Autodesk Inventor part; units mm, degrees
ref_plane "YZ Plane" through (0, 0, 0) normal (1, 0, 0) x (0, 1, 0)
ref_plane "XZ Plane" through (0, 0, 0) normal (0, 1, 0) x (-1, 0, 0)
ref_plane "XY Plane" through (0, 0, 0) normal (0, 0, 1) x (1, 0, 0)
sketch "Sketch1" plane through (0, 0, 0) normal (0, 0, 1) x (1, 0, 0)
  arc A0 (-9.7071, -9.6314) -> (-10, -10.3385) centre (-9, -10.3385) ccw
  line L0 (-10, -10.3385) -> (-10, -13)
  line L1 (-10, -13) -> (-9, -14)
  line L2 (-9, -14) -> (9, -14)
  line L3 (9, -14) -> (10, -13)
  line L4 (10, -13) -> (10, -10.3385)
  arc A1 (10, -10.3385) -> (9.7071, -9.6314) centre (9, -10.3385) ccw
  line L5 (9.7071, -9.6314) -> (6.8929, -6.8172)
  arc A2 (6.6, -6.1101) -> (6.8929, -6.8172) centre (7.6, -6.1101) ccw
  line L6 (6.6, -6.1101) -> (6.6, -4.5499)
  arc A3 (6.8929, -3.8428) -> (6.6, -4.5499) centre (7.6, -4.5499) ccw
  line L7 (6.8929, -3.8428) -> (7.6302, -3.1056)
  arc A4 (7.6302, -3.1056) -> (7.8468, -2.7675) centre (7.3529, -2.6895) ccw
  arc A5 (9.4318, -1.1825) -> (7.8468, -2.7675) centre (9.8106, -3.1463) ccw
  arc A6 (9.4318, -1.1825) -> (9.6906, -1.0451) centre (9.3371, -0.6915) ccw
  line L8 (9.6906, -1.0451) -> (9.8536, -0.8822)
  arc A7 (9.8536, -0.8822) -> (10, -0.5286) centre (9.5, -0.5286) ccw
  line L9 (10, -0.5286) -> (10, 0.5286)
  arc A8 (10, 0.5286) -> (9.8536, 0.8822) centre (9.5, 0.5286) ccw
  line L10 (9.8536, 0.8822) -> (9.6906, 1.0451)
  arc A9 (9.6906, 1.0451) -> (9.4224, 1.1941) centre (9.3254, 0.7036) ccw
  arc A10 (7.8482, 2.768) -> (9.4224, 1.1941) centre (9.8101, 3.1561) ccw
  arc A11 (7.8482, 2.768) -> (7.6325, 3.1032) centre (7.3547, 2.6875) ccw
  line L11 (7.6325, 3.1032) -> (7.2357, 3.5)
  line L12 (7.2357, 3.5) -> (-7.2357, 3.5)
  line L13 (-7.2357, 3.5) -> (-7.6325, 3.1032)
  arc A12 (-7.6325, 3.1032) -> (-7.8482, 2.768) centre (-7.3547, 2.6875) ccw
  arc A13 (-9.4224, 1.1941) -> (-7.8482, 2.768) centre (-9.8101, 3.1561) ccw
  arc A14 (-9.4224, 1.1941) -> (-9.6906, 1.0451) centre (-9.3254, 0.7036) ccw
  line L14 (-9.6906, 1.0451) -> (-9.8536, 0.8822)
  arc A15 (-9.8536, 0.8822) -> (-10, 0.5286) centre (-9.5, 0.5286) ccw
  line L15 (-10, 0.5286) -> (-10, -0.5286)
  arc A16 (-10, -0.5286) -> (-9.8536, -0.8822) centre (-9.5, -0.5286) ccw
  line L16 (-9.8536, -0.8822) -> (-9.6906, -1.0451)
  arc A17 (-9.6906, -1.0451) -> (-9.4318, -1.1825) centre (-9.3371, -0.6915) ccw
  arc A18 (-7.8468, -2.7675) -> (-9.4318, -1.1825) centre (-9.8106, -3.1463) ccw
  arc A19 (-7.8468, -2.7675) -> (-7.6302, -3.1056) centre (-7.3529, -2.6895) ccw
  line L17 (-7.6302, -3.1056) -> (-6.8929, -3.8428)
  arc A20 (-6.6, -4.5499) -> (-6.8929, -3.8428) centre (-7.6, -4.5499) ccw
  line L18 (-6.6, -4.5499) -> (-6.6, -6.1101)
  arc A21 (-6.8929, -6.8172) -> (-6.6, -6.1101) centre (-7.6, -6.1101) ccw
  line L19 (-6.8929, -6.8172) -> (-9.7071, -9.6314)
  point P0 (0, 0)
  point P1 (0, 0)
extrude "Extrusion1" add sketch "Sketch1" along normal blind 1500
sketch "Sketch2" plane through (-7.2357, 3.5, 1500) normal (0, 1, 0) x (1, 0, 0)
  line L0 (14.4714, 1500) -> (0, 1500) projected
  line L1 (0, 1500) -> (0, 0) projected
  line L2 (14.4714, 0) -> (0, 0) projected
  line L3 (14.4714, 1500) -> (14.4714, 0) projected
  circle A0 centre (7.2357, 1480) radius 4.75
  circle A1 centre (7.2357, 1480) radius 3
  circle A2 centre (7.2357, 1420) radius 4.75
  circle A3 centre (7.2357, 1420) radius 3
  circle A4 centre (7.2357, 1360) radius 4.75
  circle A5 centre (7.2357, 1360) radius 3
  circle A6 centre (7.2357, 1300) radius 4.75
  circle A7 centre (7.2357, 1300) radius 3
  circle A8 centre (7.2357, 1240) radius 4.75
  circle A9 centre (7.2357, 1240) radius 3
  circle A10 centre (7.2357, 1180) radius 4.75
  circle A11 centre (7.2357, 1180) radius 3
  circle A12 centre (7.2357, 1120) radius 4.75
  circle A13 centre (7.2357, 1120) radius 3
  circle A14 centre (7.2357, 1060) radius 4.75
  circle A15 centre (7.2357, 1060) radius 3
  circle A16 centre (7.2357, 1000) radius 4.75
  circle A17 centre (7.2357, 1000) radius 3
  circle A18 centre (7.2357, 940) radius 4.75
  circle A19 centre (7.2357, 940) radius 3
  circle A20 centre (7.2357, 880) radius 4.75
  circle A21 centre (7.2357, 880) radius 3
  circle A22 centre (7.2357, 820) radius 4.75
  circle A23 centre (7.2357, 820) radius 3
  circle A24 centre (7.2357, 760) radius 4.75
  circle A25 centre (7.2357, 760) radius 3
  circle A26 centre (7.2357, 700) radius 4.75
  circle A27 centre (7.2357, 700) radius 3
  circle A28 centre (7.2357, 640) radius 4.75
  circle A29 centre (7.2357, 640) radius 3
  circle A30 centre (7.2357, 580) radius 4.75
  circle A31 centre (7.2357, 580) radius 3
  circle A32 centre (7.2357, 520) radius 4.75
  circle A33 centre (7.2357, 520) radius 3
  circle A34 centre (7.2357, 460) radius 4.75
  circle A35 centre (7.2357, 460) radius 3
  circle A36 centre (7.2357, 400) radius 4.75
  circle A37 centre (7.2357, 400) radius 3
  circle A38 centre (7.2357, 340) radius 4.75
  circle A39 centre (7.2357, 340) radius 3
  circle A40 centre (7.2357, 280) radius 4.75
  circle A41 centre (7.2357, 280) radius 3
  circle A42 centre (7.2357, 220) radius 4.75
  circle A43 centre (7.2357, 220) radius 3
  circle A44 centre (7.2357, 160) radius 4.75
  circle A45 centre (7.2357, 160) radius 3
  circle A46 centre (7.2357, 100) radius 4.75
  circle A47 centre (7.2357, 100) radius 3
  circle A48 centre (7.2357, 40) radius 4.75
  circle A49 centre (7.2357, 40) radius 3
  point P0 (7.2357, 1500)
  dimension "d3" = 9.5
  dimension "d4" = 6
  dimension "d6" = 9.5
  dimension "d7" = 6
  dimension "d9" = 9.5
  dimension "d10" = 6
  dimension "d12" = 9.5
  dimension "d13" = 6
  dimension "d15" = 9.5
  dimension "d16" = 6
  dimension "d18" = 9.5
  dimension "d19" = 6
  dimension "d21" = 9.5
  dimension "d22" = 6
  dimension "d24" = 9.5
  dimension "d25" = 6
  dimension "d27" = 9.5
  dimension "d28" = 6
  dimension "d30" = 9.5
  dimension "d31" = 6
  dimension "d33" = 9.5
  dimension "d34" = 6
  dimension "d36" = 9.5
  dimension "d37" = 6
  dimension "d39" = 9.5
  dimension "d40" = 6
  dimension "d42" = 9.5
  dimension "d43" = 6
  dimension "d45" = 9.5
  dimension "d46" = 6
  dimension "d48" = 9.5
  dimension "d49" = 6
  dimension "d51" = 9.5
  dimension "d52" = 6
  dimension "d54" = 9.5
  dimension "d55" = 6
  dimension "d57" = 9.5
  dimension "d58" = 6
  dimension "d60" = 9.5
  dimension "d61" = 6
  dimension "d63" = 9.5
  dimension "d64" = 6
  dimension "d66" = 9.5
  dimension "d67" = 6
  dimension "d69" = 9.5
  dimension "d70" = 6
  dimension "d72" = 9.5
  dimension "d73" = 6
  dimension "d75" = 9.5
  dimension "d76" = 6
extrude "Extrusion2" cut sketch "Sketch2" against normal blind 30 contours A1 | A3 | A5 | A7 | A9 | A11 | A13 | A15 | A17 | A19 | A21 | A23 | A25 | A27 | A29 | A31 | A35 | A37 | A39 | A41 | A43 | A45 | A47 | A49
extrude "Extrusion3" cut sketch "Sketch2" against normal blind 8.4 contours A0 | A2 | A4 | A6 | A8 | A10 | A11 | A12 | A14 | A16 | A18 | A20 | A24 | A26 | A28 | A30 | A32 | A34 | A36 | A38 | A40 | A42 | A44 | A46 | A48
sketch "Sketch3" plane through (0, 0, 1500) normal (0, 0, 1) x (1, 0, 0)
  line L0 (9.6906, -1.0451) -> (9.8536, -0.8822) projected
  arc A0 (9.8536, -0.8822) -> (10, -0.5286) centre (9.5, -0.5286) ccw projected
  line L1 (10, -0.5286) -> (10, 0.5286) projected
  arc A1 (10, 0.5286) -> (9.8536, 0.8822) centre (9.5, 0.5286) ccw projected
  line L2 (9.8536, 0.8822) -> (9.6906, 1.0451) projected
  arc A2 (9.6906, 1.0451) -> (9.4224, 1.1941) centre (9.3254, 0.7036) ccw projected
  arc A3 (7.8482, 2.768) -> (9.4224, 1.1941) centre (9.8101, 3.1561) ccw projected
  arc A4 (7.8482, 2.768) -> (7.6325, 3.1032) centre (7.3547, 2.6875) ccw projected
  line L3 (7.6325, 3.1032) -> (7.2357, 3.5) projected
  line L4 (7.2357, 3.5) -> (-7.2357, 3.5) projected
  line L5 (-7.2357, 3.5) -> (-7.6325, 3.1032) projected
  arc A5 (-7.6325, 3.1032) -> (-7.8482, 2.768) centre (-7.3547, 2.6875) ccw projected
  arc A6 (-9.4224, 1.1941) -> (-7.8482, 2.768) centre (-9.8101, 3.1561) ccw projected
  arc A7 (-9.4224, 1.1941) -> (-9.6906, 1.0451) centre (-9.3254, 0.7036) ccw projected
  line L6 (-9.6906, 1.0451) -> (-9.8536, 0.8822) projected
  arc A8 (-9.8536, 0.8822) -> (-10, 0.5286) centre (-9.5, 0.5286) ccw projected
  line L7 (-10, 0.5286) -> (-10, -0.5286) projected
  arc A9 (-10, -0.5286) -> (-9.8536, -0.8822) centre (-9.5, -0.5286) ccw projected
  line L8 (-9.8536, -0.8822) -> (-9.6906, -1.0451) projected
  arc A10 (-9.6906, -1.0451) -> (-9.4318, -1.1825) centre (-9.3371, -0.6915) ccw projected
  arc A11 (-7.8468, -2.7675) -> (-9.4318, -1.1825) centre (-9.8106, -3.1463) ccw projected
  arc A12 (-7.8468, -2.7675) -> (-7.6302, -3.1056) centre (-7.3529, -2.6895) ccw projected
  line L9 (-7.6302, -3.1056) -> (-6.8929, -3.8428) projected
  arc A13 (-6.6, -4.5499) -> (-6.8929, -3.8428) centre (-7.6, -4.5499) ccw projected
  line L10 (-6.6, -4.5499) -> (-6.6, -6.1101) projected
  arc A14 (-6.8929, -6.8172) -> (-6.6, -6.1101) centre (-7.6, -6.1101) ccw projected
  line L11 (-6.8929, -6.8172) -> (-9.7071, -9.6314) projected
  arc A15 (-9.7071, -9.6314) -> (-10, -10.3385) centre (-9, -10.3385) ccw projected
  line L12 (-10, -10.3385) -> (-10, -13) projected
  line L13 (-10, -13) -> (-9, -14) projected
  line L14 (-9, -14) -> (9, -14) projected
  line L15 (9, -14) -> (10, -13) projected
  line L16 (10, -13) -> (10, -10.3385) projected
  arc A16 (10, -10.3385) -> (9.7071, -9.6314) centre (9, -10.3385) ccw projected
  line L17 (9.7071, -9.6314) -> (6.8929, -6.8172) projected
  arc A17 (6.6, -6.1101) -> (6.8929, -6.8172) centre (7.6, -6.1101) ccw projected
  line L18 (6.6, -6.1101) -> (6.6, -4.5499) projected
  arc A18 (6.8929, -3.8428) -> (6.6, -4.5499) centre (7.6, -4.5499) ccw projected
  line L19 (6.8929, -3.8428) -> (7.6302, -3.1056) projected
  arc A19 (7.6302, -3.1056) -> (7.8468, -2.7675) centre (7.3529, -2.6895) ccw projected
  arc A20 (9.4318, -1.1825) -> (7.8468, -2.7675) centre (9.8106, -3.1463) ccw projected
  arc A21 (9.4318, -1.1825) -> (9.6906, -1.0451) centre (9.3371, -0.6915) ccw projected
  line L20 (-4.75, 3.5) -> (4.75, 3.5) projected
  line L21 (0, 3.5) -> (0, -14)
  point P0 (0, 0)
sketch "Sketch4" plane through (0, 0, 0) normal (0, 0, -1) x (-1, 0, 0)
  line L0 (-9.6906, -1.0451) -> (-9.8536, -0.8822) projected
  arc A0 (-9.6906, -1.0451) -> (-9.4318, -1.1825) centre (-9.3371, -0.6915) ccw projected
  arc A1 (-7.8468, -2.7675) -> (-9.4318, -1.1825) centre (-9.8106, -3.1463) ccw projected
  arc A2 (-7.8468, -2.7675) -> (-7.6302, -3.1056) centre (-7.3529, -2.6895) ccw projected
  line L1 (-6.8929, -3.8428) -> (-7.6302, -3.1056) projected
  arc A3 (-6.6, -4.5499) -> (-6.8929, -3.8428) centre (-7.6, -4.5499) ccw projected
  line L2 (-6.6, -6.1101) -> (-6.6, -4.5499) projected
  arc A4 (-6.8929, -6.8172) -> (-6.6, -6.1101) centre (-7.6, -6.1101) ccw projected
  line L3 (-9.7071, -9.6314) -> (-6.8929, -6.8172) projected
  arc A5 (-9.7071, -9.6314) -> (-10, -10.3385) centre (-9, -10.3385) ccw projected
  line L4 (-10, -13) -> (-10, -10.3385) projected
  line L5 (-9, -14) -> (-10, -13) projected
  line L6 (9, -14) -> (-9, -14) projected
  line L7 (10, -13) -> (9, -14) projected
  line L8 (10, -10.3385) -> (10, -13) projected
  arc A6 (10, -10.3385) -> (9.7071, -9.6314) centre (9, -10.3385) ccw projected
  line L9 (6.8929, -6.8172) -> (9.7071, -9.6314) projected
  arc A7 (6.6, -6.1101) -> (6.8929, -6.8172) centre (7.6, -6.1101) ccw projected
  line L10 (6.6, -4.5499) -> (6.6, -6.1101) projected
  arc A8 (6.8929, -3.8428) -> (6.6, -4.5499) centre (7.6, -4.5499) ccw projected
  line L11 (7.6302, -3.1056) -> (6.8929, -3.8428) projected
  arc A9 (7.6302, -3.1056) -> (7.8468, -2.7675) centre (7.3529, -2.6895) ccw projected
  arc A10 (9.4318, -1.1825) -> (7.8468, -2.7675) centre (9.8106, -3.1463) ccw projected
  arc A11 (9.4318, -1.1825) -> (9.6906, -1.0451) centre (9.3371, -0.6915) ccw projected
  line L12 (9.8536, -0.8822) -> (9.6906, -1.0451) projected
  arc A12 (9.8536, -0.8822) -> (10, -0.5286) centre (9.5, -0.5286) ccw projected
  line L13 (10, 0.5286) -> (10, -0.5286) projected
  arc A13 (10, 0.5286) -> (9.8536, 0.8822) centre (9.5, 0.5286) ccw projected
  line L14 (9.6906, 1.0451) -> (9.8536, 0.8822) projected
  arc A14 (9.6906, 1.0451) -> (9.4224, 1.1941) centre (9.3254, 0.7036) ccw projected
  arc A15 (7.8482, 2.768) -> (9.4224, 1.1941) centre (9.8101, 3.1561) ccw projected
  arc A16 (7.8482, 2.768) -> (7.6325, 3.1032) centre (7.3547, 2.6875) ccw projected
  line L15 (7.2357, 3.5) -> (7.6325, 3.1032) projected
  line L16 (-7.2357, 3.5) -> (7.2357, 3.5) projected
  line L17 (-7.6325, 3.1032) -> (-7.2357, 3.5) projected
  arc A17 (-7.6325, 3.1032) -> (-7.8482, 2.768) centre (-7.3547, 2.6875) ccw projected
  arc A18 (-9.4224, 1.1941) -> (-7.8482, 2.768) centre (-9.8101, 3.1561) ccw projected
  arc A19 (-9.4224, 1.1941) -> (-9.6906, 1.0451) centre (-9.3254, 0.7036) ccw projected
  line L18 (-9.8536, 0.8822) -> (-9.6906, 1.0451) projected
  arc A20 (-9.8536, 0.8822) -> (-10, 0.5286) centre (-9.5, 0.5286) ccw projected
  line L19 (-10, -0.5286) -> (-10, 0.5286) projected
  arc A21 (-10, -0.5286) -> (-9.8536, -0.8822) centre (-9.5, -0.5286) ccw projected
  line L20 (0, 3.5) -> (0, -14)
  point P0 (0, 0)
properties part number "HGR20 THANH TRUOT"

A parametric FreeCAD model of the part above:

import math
import FreeCAD as App
import Part
import Sketcher

V = App.Vector

doc = App.newDocument("Part")
params = doc.addObject("Spreadsheet::Sheet", "Params")
for row, (alias, value) in enumerate([
    ("sketch1_radius", "1 mm"),
    ("sketch1_radius2", "2 mm"),
    ("sketch1_radius3", "0.5 mm"),
    ("sketch1_width", "18 mm"),
    ("pad1_length", "1500 mm"),
    ("sketch2_diameter", "6 mm"),
    ("pocket1_length", "30 mm"),
    ("sketch3_diameter", "6 mm"),
    ("sketch3_diameter2", "9.5 mm"),
    ("pocket2_length", "8.4 mm"),
], start=1):
    params.set(f"A{row}", alias)
    params.set(f"B{row}", "=" + value)
    params.setAlias(f"B{row}", alias)

body = doc.addObject("PartDesign::Body", "Body")

sketch1 = body.newObject("Sketcher::SketchObject", "Sketch")
sketch1.AttachmentSupport = (doc.getObject("XY_Plane"), [""])
sketch1.MapMode = "FlatFace"
sketch1.addGeometry(Part.LineSegment(V(-6.8929, -6.8172, 0), V(-9.7071, -9.6314, 0)), False)
sketch1.addGeometry(Part.ArcOfCircle(Part.Circle(V(-9, -10.3385, 0), V(0, 0, 1), 0.99999), math.radians(135), math.radians(180)), False)
sketch1.addGeometry(Part.LineSegment(V(-10, -10.3385, 0), V(-10, -13, 0)), False)
sketch1.addGeometry(Part.LineSegment(V(-10, -13, 0), V(-9, -14, 0)), False)
sketch1.addGeometry(Part.LineSegment(V(-9, -14, 0), V(9, -14, 0)), False)
sketch1.addGeometry(Part.LineSegment(V(9, -14, 0), V(10, -13, 0)), False)
sketch1.addGeometry(Part.LineSegment(V(10, -13, 0), V(10, -10.3385, 0)), False)
sketch1.addGeometry(Part.ArcOfCircle(Part.Circle(V(9, -10.3385, 0), V(0, 0, 1), 1), math.radians(0), math.radians(45)), False)
sketch1.addGeometry(Part.LineSegment(V(9.7071, -9.6314, 0), V(6.8929, -6.8172, 0)), False)
sketch1.addGeometry(Part.ArcOfCircle(Part.Circle(V(7.6, -6.1101, 0), V(0, 0, 1), 1), math.radians(180), math.radians(225)), False)
sketch1.addGeometry(Part.LineSegment(V(6.6, -6.1101, 0), V(6.6, -4.5499, 0)), False)
sketch1.addGeometry(Part.ArcOfCircle(Part.Circle(V(7.6, -4.5499, 0), V(0, 0, 1), 0.99999), math.radians(135), math.radians(180)), False)
sketch1.addGeometry(Part.LineSegment(V(6.8929, -3.8428, 0), V(7.6302, -3.1056, 0)), False)
sketch1.addGeometry(Part.ArcOfCircle(Part.Circle(V(7.3529, -2.6895, 0), V(0, 0, 1), 0.500034), math.radians(-56.319466), math.radians(-8.974414)), False)
sketch1.addGeometry(Part.ArcOfCircle(Part.Circle(V(9.8106, -3.1463, 0), V(0, 0, 1), 2), math.radians(100.917771), math.radians(169.082229)), False)
sketch1.addGeometry(Part.ArcOfCircle(Part.Circle(V(9.3371, -0.6915, 0), V(0, 0, 1), 0.500049), math.radians(-79.083314), math.radians(-45.008103)), False)
sketch1.addGeometry(Part.LineSegment(V(9.6906, -1.0451, 0), V(9.8536, -0.8822, 0)), False)
sketch1.addGeometry(Part.ArcOfCircle(Part.Circle(V(9.5, -0.5286, 0), V(0, 0, 1), 0.500066), math.radians(-45), math.radians(0)), False)
sketch1.addGeometry(Part.LineSegment(V(10, -0.5286, 0), V(10, 0.5286, 0)), False)
sketch1.addGeometry(Part.ArcOfCircle(Part.Circle(V(9.5, 0.5286, 0), V(0, 0, 1), 0.5), math.radians(0), math.radians(45)), False)
sketch1.addGeometry(Part.LineSegment(V(9.8536, 0.8822, 0), V(9.6906, 1.0451, 0)), False)
sketch1.addGeometry(Part.ArcOfCircle(Part.Circle(V(9.3254, 0.7036, 0), V(0, 0, 1), 0.499993), math.radians(43.07924), math.radians(78.813671)), False)
sketch1.addGeometry(Part.ArcOfCircle(Part.Circle(V(9.8101, 3.1561, 0), V(0, 0, 1), 1.999918), math.radians(-168.810304), math.radians(-101.177898)), False)
sketch1.addGeometry(Part.ArcOfCircle(Part.Circle(V(7.3547, 2.6875, 0), V(0, 0, 1), 0.500022), math.radians(9.264524), math.radians(56.246366)), False)
sketch1.addGeometry(Part.LineSegment(V(7.6325, 3.1032, 0), V(7.2357, 3.5, 0)), False)
sketch1.addGeometry(Part.LineSegment(V(7.2357, 3.5, 0), V(-7.2357, 3.5, 0)), False)
sketch1.addGeometry(Part.LineSegment(V(-7.2357, 3.5, 0), V(-7.6325, 3.1032, 0)), False)
sketch1.addGeometry(Part.ArcOfCircle(Part.Circle(V(-7.3547, 2.6875, 0), V(0, 0, 1), 0.499979), math.radians(123.753634), math.radians(170.735476)), False)
sketch1.addGeometry(Part.ArcOfCircle(Part.Circle(V(-9.8101, 3.1561, 0), V(0, 0, 1), 1.999939), math.radians(-78.822102), math.radians(-11.189696)), False)
sketch1.addGeometry(Part.ArcOfCircle(Part.Circle(V(-9.3254, 0.7036, 0), V(0, 0, 1), 0.499999), math.radians(101.186329), math.radians(136.92076)), False)
sketch1.addGeometry(Part.LineSegment(V(-9.6906, 1.0451, 0), V(-9.8536, 0.8822, 0)), False)
sketch1.addGeometry(Part.ArcOfCircle(Part.Circle(V(-9.5, 0.5286, 0), V(0, 0, 1), 0.500066), math.radians(135), math.radians(180)), False)
sketch1.addGeometry(Part.LineSegment(V(-10, 0.5286, 0), V(-10, -0.5286, 0)), False)
sketch1.addGeometry(Part.ArcOfCircle(Part.Circle(V(-9.5, -0.5286, 0), V(0, 0, 1), 0.5), math.radians(180), math.radians(225)), False)
sketch1.addGeometry(Part.LineSegment(V(-9.8536, -0.8822, 0), V(-9.6906, -1.0451, 0)), False)
sketch1.addGeometry(Part.ArcOfCircle(Part.Circle(V(-9.3371, -0.6915, 0), V(0, 0, 1), 0.499995), math.radians(-134.991897), math.radians(-100.916686)), False)
sketch1.addGeometry(Part.ArcOfCircle(Part.Circle(V(-9.8106, -3.1463, 0), V(0, 0, 1), 2), math.radians(10.917771), math.radians(79.082229)), False)
sketch1.addGeometry(Part.ArcOfCircle(Part.Circle(V(-7.3529, -2.6895, 0), V(0, 0, 1), 0.500021), math.radians(-171.025586), math.radians(-123.680534)), False)
sketch1.addGeometry(Part.LineSegment(V(-7.6302, -3.1056, 0), V(-6.8929, -3.8428, 0)), False)
sketch1.addGeometry(Part.ArcOfCircle(Part.Circle(V(-7.6, -4.5499, 0), V(0, 0, 1), 1), math.radians(0), math.radians(45)), False)
sketch1.addGeometry(Part.LineSegment(V(-6.6, -4.5499, 0), V(-6.6, -6.1101, 0)), False)
sketch1.addGeometry(Part.ArcOfCircle(Part.Circle(V(-7.6, -6.1101, 0), V(0, 0, 1), 0.99999), math.radians(-45), math.radians(0)), False)
sketch1.addConstraint(Sketcher.Constraint("Tangent", 0, 2, 1, 1))
sketch1.addConstraint(Sketcher.Constraint("Tangent", 1, 2, 2, 1))
sketch1.addConstraint(Sketcher.Constraint("Coincident", 2, 2, 3, 1))
sketch1.addConstraint(Sketcher.Constraint("Coincident", 3, 2, 4, 1))
sketch1.addConstraint(Sketcher.Constraint("Coincident", 4, 2, 5, 1))
sketch1.addConstraint(Sketcher.Constraint("Coincident", 5, 2, 6, 1))
sketch1.addConstraint(Sketcher.Constraint("Tangent", 6, 2, 7, 1))
sketch1.addConstraint(Sketcher.Constraint("Tangent", 7, 2, 8, 1))
sketch1.addConstraint(Sketcher.Constraint("Tangent", 8, 2, 9, 2))
sketch1.addConstraint(Sketcher.Constraint("Tangent", 9, 1, 10, 1))
sketch1.addConstraint(Sketcher.Constraint("Tangent", 10, 2, 11, 2))
sketch1.addConstraint(Sketcher.Constraint("Tangent", 11, 1, 12, 1))
sketch1.addConstraint(Sketcher.Constraint("Coincident", 12, 2, 13, 1))
sketch1.addConstraint(Sketcher.Constraint("Coincident", 13, 2, 14, 2))
sketch1.addConstraint(Sketcher.Constraint("Tangent", 14, 1, 15, 1))
sketch1.addConstraint(Sketcher.Constraint("Tangent", 15, 2, 16, 1))
sketch1.addConstraint(Sketcher.Constraint("Tangent", 16, 2, 17, 1))
sketch1.addConstraint(Sketcher.Constraint("Tangent", 17, 2, 18, 1))
sketch1.addConstraint(Sketcher.Constraint("Tangent", 18, 2, 19, 1))
sketch1.addConstraint(Sketcher.Constraint("Tangent", 19, 2, 20, 1))
sketch1.addConstraint(Sketcher.Constraint("Coincident", 20, 2, 21, 1))
sketch1.addConstraint(Sketcher.Constraint("Tangent", 21, 2, 22, 2))
sketch1.addConstraint(Sketcher.Constraint("Coincident", 22, 1, 23, 1))
sketch1.addConstraint(Sketcher.Constraint("Coincident", 23, 2, 24, 1))
sketch1.addConstraint(Sketcher.Constraint("Coincident", 24, 2, 25, 1))
sketch1.addConstraint(Sketcher.Constraint("Coincident", 25, 2, 26, 1))
sketch1.addConstraint(Sketcher.Constraint("Coincident", 26, 2, 27, 1))
sketch1.addConstraint(Sketcher.Constraint("Coincident", 27, 2, 28, 2))
sketch1.addConstraint(Sketcher.Constraint("Tangent", 28, 1, 29, 1))
sketch1.addConstraint(Sketcher.Constraint("Coincident", 29, 2, 30, 1))
sketch1.addConstraint(Sketcher.Constraint("Tangent", 30, 2, 31, 1))
sketch1.addConstraint(Sketcher.Constraint("Tangent", 31, 2, 32, 1))
sketch1.addConstraint(Sketcher.Constraint("Tangent", 32, 2, 33, 1))
sketch1.addConstraint(Sketcher.Constraint("Tangent", 33, 2, 34, 1))
sketch1.addConstraint(Sketcher.Constraint("Tangent", 34, 2, 35, 1))
sketch1.addConstraint(Sketcher.Constraint("Tangent", 35, 2, 36, 2))
sketch1.addConstraint(Sketcher.Constraint("Coincident", 36, 1, 37, 1))
sketch1.addConstraint(Sketcher.Constraint("Coincident", 37, 2, 38, 1))
sketch1.addConstraint(Sketcher.Constraint("Tangent", 38, 2, 39, 2))
sketch1.addConstraint(Sketcher.Constraint("Tangent", 39, 1, 40, 1))
sketch1.addConstraint(Sketcher.Constraint("Tangent", 40, 2, 41, 2))
sketch1.addConstraint(Sketcher.Constraint("Tangent", 41, 1, 0, 1))
sketch1.addConstraint(Sketcher.Constraint("Vertical", 2))
sketch1.addConstraint(Sketcher.Constraint("Horizontal", 4))
sketch1.addConstraint(Sketcher.Constraint("Vertical", 6))
sketch1.addConstraint(Sketcher.Constraint("Vertical", 10))
sketch1.addConstraint(Sketcher.Constraint("Vertical", 18))
sketch1.addConstraint(Sketcher.Constraint("Horizontal", 25))
sketch1.addConstraint(Sketcher.Constraint("Vertical", 32))
sketch1.addConstraint(Sketcher.Constraint("Vertical", 40))
sketch1.addConstraint(Sketcher.Constraint("Equal", 1, 7))
sketch1.addConstraint(Sketcher.Constraint("Equal", 7, 9))
sketch1.addConstraint(Sketcher.Constraint("Equal", 9, 11))
sketch1.addConstraint(Sketcher.Constraint("Equal", 13, 15))
sketch1.addConstraint(Sketcher.Constraint("Equal", 15, 17))
sketch1.addConstraint(Sketcher.Constraint("Equal", 17, 19))
sketch1.addConstraint(Sketcher.Constraint("Equal", 19, 21))
sketch1.addConstraint(Sketcher.Constraint("Equal", 14, 22))
sketch1.addConstraint(Sketcher.Constraint("Equal", 21, 23))
sketch1.addConstraint(Sketcher.Constraint("Equal", 23, 27))
sketch1.addConstraint(Sketcher.Constraint("Equal", 22, 28))
sketch1.addConstraint(Sketcher.Constraint("Equal", 27, 29))
sketch1.addConstraint(Sketcher.Constraint("Equal", 29, 31))
sketch1.addConstraint(Sketcher.Constraint("Equal", 31, 33))
sketch1.addConstraint(Sketcher.Constraint("Equal", 33, 35))
sketch1.addConstraint(Sketcher.Constraint("Equal", 28, 36))
sketch1.addConstraint(Sketcher.Constraint("Equal", 35, 37))
sketch1.addConstraint(Sketcher.Constraint("Equal", 11, 39))
sketch1.addConstraint(Sketcher.Constraint("Equal", 39, 41))
sketch1.addConstraint(Sketcher.Constraint("Symmetric", 17, 3, 31, 3, -1, 1))
sketch1.addConstraint(Sketcher.Constraint("Symmetric", 15, 2, 29, 2, -1, 1))
sketch1.addConstraint(Sketcher.Constraint("Symmetric", 19, 2, 33, 2, -1, 1))
sketch1.addConstraint(Sketcher.Constraint("Symmetric", 1, 3, 7, 3, -2))
sketch1.addConstraint(Sketcher.Constraint("Symmetric", 23, 3, 27, 3, -2))
sketch1.addConstraint(Sketcher.Constraint("Symmetric", 22, 3, 28, 3, -2))
sketch1.addConstraint(Sketcher.Constraint("Symmetric", 15, 3, 35, 3, -2))
sketch1.addConstraint(Sketcher.Constraint("Symmetric", 13, 3, 37, 3, -2))
sketch1.addConstraint(Sketcher.Constraint("Symmetric", 11, 3, 39, 3, -2))
sketch1.addConstraint(Sketcher.Constraint("Perpendicular", 0, 3))
sketch1.addConstraint(Sketcher.Constraint("Perpendicular", 3, 5))
sketch1.addConstraint(Sketcher.Constraint("Perpendicular", 5, 8))
sketch1.addConstraint(Sketcher.Constraint("Perpendicular", 8, 12))
sketch1.addConstraint(Sketcher.Constraint("Parallel", 12, 16))
sketch1.addConstraint(Sketcher.Constraint("Perpendicular", 12, 20))
sketch1.addConstraint(Sketcher.Constraint("Parallel", 20, 24))
sketch1.addConstraint(Sketcher.Constraint("Perpendicular", 24, 26))
sketch1.addConstraint(Sketcher.Constraint("Parallel", 34, 38))
sketch1.addConstraint(Sketcher.Constraint("Horizontal", 21, 3, 29, 3))
sketch1.addConstraint(Sketcher.Constraint("Horizontal", 19, 3, 31, 3))
sketch1.addConstraint(Sketcher.Constraint("Horizontal", 14, 3, 36, 3))
sketch1.addConstraint(Sketcher.Constraint("Horizontal", 2, 2, 5, 2))
sketch1.addConstraint(Sketcher.Constraint("Horizontal", 23, 2, 26, 2))
sketch1.addConstraint(Sketcher.Constraint("Vertical", 1, 3, 3, 2))
sketch1.addConstraint(Sketcher.Constraint("Vertical", 6, 2, 17, 2))
sketch1.addConstraint(Sketcher.Constraint("Radius", 1, 1.0))
sketch1.addConstraint(Sketcher.Constraint("Radius", 14, 2.0))
sketch1.addConstraint(Sketcher.Constraint("Radius", 13, 0.5))
sketch1.addConstraint(Sketcher.Constraint("DistanceX", 4, 1, 4, 2, 18.0))
sketch1.addConstraint(Sketcher.Constraint("DistanceY", 2, 2, -1, 1, 13.0))
sketch1.addConstraint(Sketcher.Constraint("DistanceX", -1, 1, 9, 3, 7.6))
sketch1.addConstraint(Sketcher.Constraint("DistanceY", -1, 1, 24, 2, 3.5))
sketch1.addConstraint(Sketcher.Constraint("DistanceY", 9, 3, -1, 1, 6.11))
sketch1.addConstraint(Sketcher.Constraint("DistanceY", 11, 3, -1, 1, 4.55))
sketch1.addConstraint(Sketcher.Constraint("DistanceX", -1, 1, 22, 3, 9.81))
sketch1.addConstraint(Sketcher.Constraint("DistanceX", 25, 2, 25, 1, 14.4714))
sketch1.addConstraint(Sketcher.Constraint("DistanceY", 18, 1, 18, 2, 1.0572))
sketch1.addConstraint(Sketcher.Constraint("DistanceX", -1, 1, 13, 3, 7.353))
sketch1.addConstraint(Sketcher.Constraint("DistanceX", -1, 1, 15, 3, 9.337))
sketch1.addConstraint(Sketcher.Constraint("DistanceY", -1, 1, 22, 3, 3.156))
sketch1.addConstraint(Sketcher.Constraint("DistanceY", -1, 1, 22, 1, 2.768))
sketch1.addConstraint(Sketcher.Constraint("Distance", 12, 1.0426))
sketch1.addConstraint(Sketcher.Constraint("Distance", 24, 0.5612))
sketch1.addConstraint(Sketcher.Constraint("DistanceX", -1, 1, 14, 3, 9.8106))
sketch1.setExpression("Constraints[94]", "Params.sketch1_radius")
sketch1.setExpression("Constraints[95]", "Params.sketch1_radius2")
sketch1.setExpression("Constraints[96]", "Params.sketch1_radius3")
sketch1.setExpression("Constraints[97]", "Params.sketch1_width")
pad1 = body.newObject("PartDesign::Pad", "Pad")
pad1.Profile = sketch1
pad1.setExpression("Length", "Params.pad1_length")

sketch2 = body.newObject("Sketcher::SketchObject", "Sketch001")
sketch2.AttachmentSupport = (doc.getObject("XZ_Plane"), [""])
sketch2.MapMode = "FlatFace"
sketch2.AttachmentOffset = App.Placement(V(0, 0, -3.5), App.Rotation())
sketch2.addGeometry(Part.Circle(V(0, 20, 0), V(0, 0, 1), 3), False)
sketch2.addGeometry(Part.Circle(V(0, 80, 0), V(0, 0, 1), 3), False)
sketch2.addGeometry(Part.Circle(V(0, 140, 0), V(0, 0, 1), 3), False)
sketch2.addGeometry(Part.Circle(V(0, 200, 0), V(0, 0, 1), 3), False)
sketch2.addGeometry(Part.Circle(V(0, 260, 0), V(0, 0, 1), 3), False)
sketch2.addGeometry(Part.Circle(V(0, 320, 0), V(0, 0, 1), 3), False)
sketch2.addGeometry(Part.Circle(V(0, 380, 0), V(0, 0, 1), 3), False)
sketch2.addGeometry(Part.Circle(V(0, 440, 0), V(0, 0, 1), 3), False)
sketch2.addGeometry(Part.Circle(V(0, 500, 0), V(0, 0, 1), 3), False)
sketch2.addGeometry(Part.Circle(V(0, 560, 0), V(0, 0, 1), 3), False)
sketch2.addGeometry(Part.Circle(V(0, 620, 0), V(0, 0, 1), 3), False)
sketch2.addGeometry(Part.Circle(V(0, 680, 0), V(0, 0, 1), 3), False)
sketch2.addGeometry(Part.Circle(V(0, 740, 0), V(0, 0, 1), 3), False)
sketch2.addGeometry(Part.Circle(V(0, 800, 0), V(0, 0, 1), 3), False)
sketch2.addGeometry(Part.Circle(V(0, 860, 0), V(0, 0, 1), 3), False)
sketch2.addGeometry(Part.Circle(V(0, 920, 0), V(0, 0, 1), 3), False)
sketch2.addGeometry(Part.Circle(V(0, 1040, 0), V(0, 0, 1), 3), False)
sketch2.addGeometry(Part.Circle(V(0, 1100, 0), V(0, 0, 1), 3), False)
sketch2.addGeometry(Part.Circle(V(0, 1160, 0), V(0, 0, 1), 3), False)
sketch2.addGeometry(Part.Circle(V(0, 1220, 0), V(0, 0, 1), 3), False)
sketch2.addGeometry(Part.Circle(V(0, 1280, 0), V(0, 0, 1), 3), False)
sketch2.addGeometry(Part.Circle(V(0, 1340, 0), V(0, 0, 1), 3), False)
sketch2.addGeometry(Part.Circle(V(0, 1400, 0), V(0, 0, 1), 3), False)
sketch2.addGeometry(Part.Circle(V(0, 1460, 0), V(0, 0, 1), 3), False)
sketch2.addConstraint(Sketcher.Constraint("Equal", 0, 1))
sketch2.addConstraint(Sketcher.Constraint("Equal", 1, 2))
sketch2.addConstraint(Sketcher.Constraint("Equal", 2, 3))
sketch2.addConstraint(Sketcher.Constraint("Equal", 3, 4))
sketch2.addConstraint(Sketcher.Constraint("Equal", 4, 5))
sketch2.addConstraint(Sketcher.Constraint("Equal", 5, 6))
sketch2.addConstraint(Sketcher.Constraint("Equal", 6, 7))
sketch2.addConstraint(Sketcher.Constraint("Equal", 7, 8))
sketch2.addConstraint(Sketcher.Constraint("Equal", 8, 9))
sketch2.addConstraint(Sketcher.Constraint("Equal", 9, 10))
sketch2.addConstraint(Sketcher.Constraint("Equal", 10, 11))
sketch2.addConstraint(Sketcher.Constraint("Equal", 11, 12))
sketch2.addConstraint(Sketcher.Constraint("Equal", 12, 13))
sketch2.addConstraint(Sketcher.Constraint("Equal", 13, 14))
sketch2.addConstraint(Sketcher.Constraint("Equal", 14, 15))
sketch2.addConstraint(Sketcher.Constraint("Equal", 15, 16))
sketch2.addConstraint(Sketcher.Constraint("Equal", 16, 17))
sketch2.addConstraint(Sketcher.Constraint("Equal", 17, 18))
sketch2.addConstraint(Sketcher.Constraint("Equal", 18, 19))
sketch2.addConstraint(Sketcher.Constraint("Equal", 19, 20))
sketch2.addConstraint(Sketcher.Constraint("Equal", 20, 21))
sketch2.addConstraint(Sketcher.Constraint("Equal", 21, 22))
sketch2.addConstraint(Sketcher.Constraint("Equal", 22, 23))
sketch2.addConstraint(Sketcher.Constraint("PointOnObject", 0, 3, -2))
sketch2.addConstraint(Sketcher.Constraint("PointOnObject", 1, 3, -2))
sketch2.addConstraint(Sketcher.Constraint("PointOnObject", 2, 3, -2))
sketch2.addConstraint(Sketcher.Constraint("PointOnObject", 3, 3, -2))
sketch2.addConstraint(Sketcher.Constraint("PointOnObject", 4, 3, -2))
sketch2.addConstraint(Sketcher.Constraint("PointOnObject", 5, 3, -2))
sketch2.addConstraint(Sketcher.Constraint("PointOnObject", 6, 3, -2))
sketch2.addConstraint(Sketcher.Constraint("PointOnObject", 7, 3, -2))
sketch2.addConstraint(Sketcher.Constraint("PointOnObject", 8, 3, -2))
sketch2.addConstraint(Sketcher.Constraint("PointOnObject", 9, 3, -2))
sketch2.addConstraint(Sketcher.Constraint("PointOnObject", 10, 3, -2))
sketch2.addConstraint(Sketcher.Constraint("PointOnObject", 11, 3, -2))
sketch2.addConstraint(Sketcher.Constraint("PointOnObject", 12, 3, -2))
sketch2.addConstraint(Sketcher.Constraint("PointOnObject", 13, 3, -2))
sketch2.addConstraint(Sketcher.Constraint("PointOnObject", 14, 3, -2))
sketch2.addConstraint(Sketcher.Constraint("PointOnObject", 15, 3, -2))
sketch2.addConstraint(Sketcher.Constraint("PointOnObject", 16, 3, -2))
sketch2.addConstraint(Sketcher.Constraint("PointOnObject", 17, 3, -2))
sketch2.addConstraint(Sketcher.Constraint("PointOnObject", 18, 3, -2))
sketch2.addConstraint(Sketcher.Constraint("PointOnObject", 19, 3, -2))
sketch2.addConstraint(Sketcher.Constraint("PointOnObject", 20, 3, -2))
sketch2.addConstraint(Sketcher.Constraint("PointOnObject", 21, 3, -2))
sketch2.addConstraint(Sketcher.Constraint("PointOnObject", 22, 3, -2))
sketch2.addConstraint(Sketcher.Constraint("PointOnObject", 23, 3, -2))
sketch2.addConstraint(Sketcher.Constraint("Diameter", 0, 6.0))
sketch2.addConstraint(Sketcher.Constraint("DistanceY", -1, 1, 0, 3, 20.0))
sketch2.addConstraint(Sketcher.Constraint("DistanceY", -1, 1, 1, 3, 80.0))
sketch2.addConstraint(Sketcher.Constraint("DistanceY", -1, 1, 2, 3, 140.0))
sketch2.addConstraint(Sketcher.Constraint("DistanceY", -1, 1, 3, 3, 200.0))
sketch2.addConstraint(Sketcher.Constraint("DistanceY", -1, 1, 4, 3, 260.0))
sketch2.addConstraint(Sketcher.Constraint("DistanceY", -1, 1, 5, 3, 320.0))
sketch2.addConstraint(Sketcher.Constraint("DistanceY", -1, 1, 6, 3, 380.0))
sketch2.addConstraint(Sketcher.Constraint("DistanceY", -1, 1, 7, 3, 440.0))
sketch2.addConstraint(Sketcher.Constraint("DistanceY", -1, 1, 8, 3, 500.0))
sketch2.addConstraint(Sketcher.Constraint("DistanceY", -1, 1, 9, 3, 560.0))
sketch2.addConstraint(Sketcher.Constraint("DistanceY", -1, 1, 10, 3, 620.0))
sketch2.addConstraint(Sketcher.Constraint("DistanceY", -1, 1, 11, 3, 680.0))
sketch2.addConstraint(Sketcher.Constraint("DistanceY", -1, 1, 12, 3, 740.0))
sketch2.addConstraint(Sketcher.Constraint("DistanceY", -1, 1, 13, 3, 800.0))
sketch2.addConstraint(Sketcher.Constraint("DistanceY", -1, 1, 14, 3, 860.0))
sketch2.addConstraint(Sketcher.Constraint("DistanceY", -1, 1, 15, 3, 920.0))
sketch2.addConstraint(Sketcher.Constraint("DistanceY", -1, 1, 16, 3, 1040.0))
sketch2.addConstraint(Sketcher.Constraint("DistanceY", -1, 1, 17, 3, 1100.0))
sketch2.addConstraint(Sketcher.Constraint("DistanceY", -1, 1, 18, 3, 1160.0))
sketch2.addConstraint(Sketcher.Constraint("DistanceY", -1, 1, 19, 3, 1220.0))
sketch2.addConstraint(Sketcher.Constraint("DistanceY", -1, 1, 20, 3, 1280.0))
sketch2.addConstraint(Sketcher.Constraint("DistanceY", -1, 1, 21, 3, 1340.0))
sketch2.addConstraint(Sketcher.Constraint("DistanceY", -1, 1, 22, 3, 1400.0))
sketch2.addConstraint(Sketcher.Constraint("DistanceY", -1, 1, 23, 3, 1460.0))
sketch2.setExpression("Constraints[47]", "Params.sketch2_diameter")
pocket1 = body.newObject("PartDesign::Pocket", "Pocket")
pocket1.Profile = sketch2
pocket1.setExpression("Length", "Params.pocket1_length")
pocket1.Reversed = True

sketch3 = body.newObject("Sketcher::SketchObject", "Sketch002")
sketch3.AttachmentSupport = (doc.getObject("XZ_Plane"), [""])
sketch3.MapMode = "FlatFace"
sketch3.AttachmentOffset = App.Placement(V(0, 0, -3.5), App.Rotation())
sketch3.addGeometry(Part.Circle(V(0, 20, 0), V(0, 0, 1), 4.75), False)
sketch3.addGeometry(Part.Circle(V(0, 20, 0), V(0, 0, 1), 3), False)
sketch3.addGeometry(Part.Circle(V(0, 80, 0), V(0, 0, 1), 4.75), False)
sketch3.addGeometry(Part.Circle(V(0, 80, 0), V(0, 0, 1), 3), False)
sketch3.addGeometry(Part.Circle(V(0, 140, 0), V(0, 0, 1), 4.75), False)
sketch3.addGeometry(Part.Circle(V(0, 140, 0), V(0, 0, 1), 3), False)
sketch3.addGeometry(Part.Circle(V(0, 200, 0), V(0, 0, 1), 4.75), False)
sketch3.addGeometry(Part.Circle(V(0, 200, 0), V(0, 0, 1), 3), False)
sketch3.addGeometry(Part.Circle(V(0, 260, 0), V(0, 0, 1), 4.75), False)
sketch3.addGeometry(Part.Circle(V(0, 260, 0), V(0, 0, 1), 3), False)
sketch3.addGeometry(Part.Circle(V(0, 320, 0), V(0, 0, 1), 4.75), False)
sketch3.addGeometry(Part.Circle(V(0, 380, 0), V(0, 0, 1), 4.75), False)
sketch3.addGeometry(Part.Circle(V(0, 380, 0), V(0, 0, 1), 3), False)
sketch3.addGeometry(Part.Circle(V(0, 440, 0), V(0, 0, 1), 4.75), False)
sketch3.addGeometry(Part.Circle(V(0, 440, 0), V(0, 0, 1), 3), False)
sketch3.addGeometry(Part.Circle(V(0, 500, 0), V(0, 0, 1), 4.75), False)
sketch3.addGeometry(Part.Circle(V(0, 500, 0), V(0, 0, 1), 3), False)
sketch3.addGeometry(Part.Circle(V(0, 560, 0), V(0, 0, 1), 4.75), False)
sketch3.addGeometry(Part.Circle(V(0, 560, 0), V(0, 0, 1), 3), False)
sketch3.addGeometry(Part.Circle(V(0, 620, 0), V(0, 0, 1), 4.75), False)
sketch3.addGeometry(Part.Circle(V(0, 620, 0), V(0, 0, 1), 3), False)
sketch3.addGeometry(Part.Circle(V(0, 740, 0), V(0, 0, 1), 4.75), False)
sketch3.addGeometry(Part.Circle(V(0, 740, 0), V(0, 0, 1), 3), False)
sketch3.addGeometry(Part.Circle(V(0, 800, 0), V(0, 0, 1), 4.75), False)
sketch3.addGeometry(Part.Circle(V(0, 800, 0), V(0, 0, 1), 3), False)
sketch3.addGeometry(Part.Circle(V(0, 860, 0), V(0, 0, 1), 4.75), False)
sketch3.addGeometry(Part.Circle(V(0, 860, 0), V(0, 0, 1), 3), False)
sketch3.addGeometry(Part.Circle(V(0, 920, 0), V(0, 0, 1), 4.75), False)
sketch3.addGeometry(Part.Circle(V(0, 920, 0), V(0, 0, 1), 3), False)
sketch3.addGeometry(Part.Circle(V(0, 980, 0), V(0, 0, 1), 4.75), False)
sketch3.addGeometry(Part.Circle(V(0, 980, 0), V(0, 0, 1), 3), False)
sketch3.addGeometry(Part.Circle(V(0, 1040, 0), V(0, 0, 1), 4.75), False)
sketch3.addGeometry(Part.Circle(V(0, 1040, 0), V(0, 0, 1), 3), False)
sketch3.addGeometry(Part.Circle(V(0, 1100, 0), V(0, 0, 1), 4.75), False)
sketch3.addGeometry(Part.Circle(V(0, 1100, 0), V(0, 0, 1), 3), False)
sketch3.addGeometry(Part.Circle(V(0, 1160, 0), V(0, 0, 1), 4.75), False)
sketch3.addGeometry(Part.Circle(V(0, 1160, 0), V(0, 0, 1), 3), False)
sketch3.addGeometry(Part.Circle(V(0, 1220, 0), V(0, 0, 1), 4.75), False)
sketch3.addGeometry(Part.Circle(V(0, 1220, 0), V(0, 0, 1), 3), False)
sketch3.addGeometry(Part.Circle(V(0, 1280, 0), V(0, 0, 1), 4.75), False)
sketch3.addGeometry(Part.Circle(V(0, 1280, 0), V(0, 0, 1), 3), False)
sketch3.addGeometry(Part.Circle(V(0, 1340, 0), V(0, 0, 1), 4.75), False)
sketch3.addGeometry(Part.Circle(V(0, 1340, 0), V(0, 0, 1), 3), False)
sketch3.addGeometry(Part.Circle(V(0, 1400, 0), V(0, 0, 1), 4.75), False)
sketch3.addGeometry(Part.Circle(V(0, 1400, 0), V(0, 0, 1), 3), False)
sketch3.addGeometry(Part.Circle(V(0, 1460, 0), V(0, 0, 1), 4.75), False)
sketch3.addGeometry(Part.Circle(V(0, 1460, 0), V(0, 0, 1), 3), False)
sketch3.addConstraint(Sketcher.Constraint("Coincident", 1, 3, 0, 3))
sketch3.addConstraint(Sketcher.Constraint("Coincident", 3, 3, 2, 3))
sketch3.addConstraint(Sketcher.Constraint("Coincident", 5, 3, 4, 3))
sketch3.addConstraint(Sketcher.Constraint("Coincident", 7, 3, 6, 3))
sketch3.addConstraint(Sketcher.Constraint("Coincident", 9, 3, 8, 3))
sketch3.addConstraint(Sketcher.Constraint("Coincident", 12, 3, 11, 3))
sketch3.addConstraint(Sketcher.Constraint("Coincident", 14, 3, 13, 3))
sketch3.addConstraint(Sketcher.Constraint("Coincident", 16, 3, 15, 3))
sketch3.addConstraint(Sketcher.Constraint("Coincident", 18, 3, 17, 3))
sketch3.addConstraint(Sketcher.Constraint("Coincident", 20, 3, 19, 3))
sketch3.addConstraint(Sketcher.Constraint("Coincident", 22, 3, 21, 3))
sketch3.addConstraint(Sketcher.Constraint("Coincident", 24, 3, 23, 3))
sketch3.addConstraint(Sketcher.Constraint("Coincident", 26, 3, 25, 3))
sketch3.addConstraint(Sketcher.Constraint("Coincident", 28, 3, 27, 3))
sketch3.addConstraint(Sketcher.Constraint("Coincident", 30, 3, 29, 3))
sketch3.addConstraint(Sketcher.Constraint("Coincident", 32, 3, 31, 3))
sketch3.addConstraint(Sketcher.Constraint("Coincident", 34, 3, 33, 3))
sketch3.addConstraint(Sketcher.Constraint("Coincident", 36, 3, 35, 3))
sketch3.addConstraint(Sketcher.Constraint("Coincident", 38, 3, 37, 3))
sketch3.addConstraint(Sketcher.Constraint("Coincident", 40, 3, 39, 3))
sketch3.addConstraint(Sketcher.Constraint("Coincident", 42, 3, 41, 3))
sketch3.addConstraint(Sketcher.Constraint("Coincident", 44, 3, 43, 3))
sketch3.addConstraint(Sketcher.Constraint("Coincident", 46, 3, 45, 3))
sketch3.addConstraint(Sketcher.Constraint("Equal", 0, 2))
sketch3.addConstraint(Sketcher.Constraint("Equal", 1, 3))
sketch3.addConstraint(Sketcher.Constraint("Equal", 2, 4))
sketch3.addConstraint(Sketcher.Constraint("Equal", 3, 5))
sketch3.addConstraint(Sketcher.Constraint("Equal", 4, 6))
sketch3.addConstraint(Sketcher.Constraint("Equal", 5, 7))
sketch3.addConstraint(Sketcher.Constraint("Equal", 6, 8))
sketch3.addConstraint(Sketcher.Constraint("Equal", 7, 9))
sketch3.addConstraint(Sketcher.Constraint("Equal", 8, 10))
sketch3.addConstraint(Sketcher.Constraint("Equal", 10, 11))
sketch3.addConstraint(Sketcher.Constraint("Equal", 9, 12))
sketch3.addConstraint(Sketcher.Constraint("Equal", 11, 13))
sketch3.addConstraint(Sketcher.Constraint("Equal", 12, 14))
sketch3.addConstraint(Sketcher.Constraint("Equal", 13, 15))
sketch3.addConstraint(Sketcher.Constraint("Equal", 14, 16))
sketch3.addConstraint(Sketcher.Constraint("Equal", 15, 17))
sketch3.addConstraint(Sketcher.Constraint("Equal", 16, 18))
sketch3.addConstraint(Sketcher.Constraint("Equal", 17, 19))
sketch3.addConstraint(Sketcher.Constraint("Equal", 18, 20))
sketch3.addConstraint(Sketcher.Constraint("Equal", 19, 21))
sketch3.addConstraint(Sketcher.Constraint("Equal", 20, 22))
sketch3.addConstraint(Sketcher.Constraint("Equal", 21, 23))
sketch3.addConstraint(Sketcher.Constraint("Equal", 22, 24))
sketch3.addConstraint(Sketcher.Constraint("Equal", 23, 25))
sketch3.addConstraint(Sketcher.Constraint("Equal", 24, 26))
sketch3.addConstraint(Sketcher.Constraint("Equal", 25, 27))
sketch3.addConstraint(Sketcher.Constraint("Equal", 26, 28))
sketch3.addConstraint(Sketcher.Constraint("Equal", 27, 29))
sketch3.addConstraint(Sketcher.Constraint("Equal", 28, 30))
sketch3.addConstraint(Sketcher.Constraint("Equal", 29, 31))
sketch3.addConstraint(Sketcher.Constraint("Equal", 30, 32))
sketch3.addConstraint(Sketcher.Constraint("Equal", 31, 33))
sketch3.addConstraint(Sketcher.Constraint("Equal", 32, 34))
sketch3.addConstraint(Sketcher.Constraint("Equal", 33, 35))
sketch3.addConstraint(Sketcher.Constraint("Equal", 34, 36))
sketch3.addConstraint(Sketcher.Constraint("Equal", 35, 37))
sketch3.addConstraint(Sketcher.Constraint("Equal", 36, 38))
sketch3.addConstraint(Sketcher.Constraint("Equal", 37, 39))
sketch3.addConstraint(Sketcher.Constraint("Equal", 38, 40))
sketch3.addConstraint(Sketcher.Constraint("Equal", 39, 41))
sketch3.addConstraint(Sketcher.Constraint("Equal", 40, 42))
sketch3.addConstraint(Sketcher.Constraint("Equal", 41, 43))
sketch3.addConstraint(Sketcher.Constraint("Equal", 42, 44))
sketch3.addConstraint(Sketcher.Constraint("Equal", 43, 45))
sketch3.addConstraint(Sketcher.Constraint("Equal", 44, 46))
sketch3.addConstraint(Sketcher.Constraint("PointOnObject", 0, 3, -2))
sketch3.addConstraint(Sketcher.Constraint("PointOnObject", 2, 3, -2))
sketch3.addConstraint(Sketcher.Constraint("PointOnObject", 4, 3, -2))
sketch3.addConstraint(Sketcher.Constraint("PointOnObject", 6, 3, -2))
sketch3.addConstraint(Sketcher.Constraint("PointOnObject", 8, 3, -2))
sketch3.addConstraint(Sketcher.Constraint("PointOnObject", 10, 3, -2))
sketch3.addConstraint(Sketcher.Constraint("PointOnObject", 11, 3, -2))
sketch3.addConstraint(Sketcher.Constraint("PointOnObject", 13, 3, -2))
sketch3.addConstraint(Sketcher.Constraint("PointOnObject", 15, 3, -2))
sketch3.addConstraint(Sketcher.Constraint("PointOnObject", 17, 3, -2))
sketch3.addConstraint(Sketcher.Constraint("PointOnObject", 19, 3, -2))
sketch3.addConstraint(Sketcher.Constraint("PointOnObject", 21, 3, -2))
sketch3.addConstraint(Sketcher.Constraint("PointOnObject", 23, 3, -2))
sketch3.addConstraint(Sketcher.Constraint("PointOnObject", 25, 3, -2))
sketch3.addConstraint(Sketcher.Constraint("PointOnObject", 27, 3, -2))
sketch3.addConstraint(Sketcher.Constraint("PointOnObject", 29, 3, -2))
sketch3.addConstraint(Sketcher.Constraint("PointOnObject", 31, 3, -2))
sketch3.addConstraint(Sketcher.Constraint("PointOnObject", 33, 3, -2))
sketch3.addConstraint(Sketcher.Constraint("PointOnObject", 35, 3, -2))
sketch3.addConstraint(Sketcher.Constraint("PointOnObject", 37, 3, -2))
sketch3.addConstraint(Sketcher.Constraint("PointOnObject", 39, 3, -2))
sketch3.addConstraint(Sketcher.Constraint("PointOnObject", 41, 3, -2))
sketch3.addConstraint(Sketcher.Constraint("PointOnObject", 43, 3, -2))
sketch3.addConstraint(Sketcher.Constraint("PointOnObject", 45, 3, -2))
sketch3.addConstraint(Sketcher.Constraint("Diameter", 1, 6.0))
sketch3.addConstraint(Sketcher.Constraint("Diameter", 0, 9.5))
sketch3.addConstraint(Sketcher.Constraint("DistanceY", -1, 1, 0, 3, 20.0))
sketch3.addConstraint(Sketcher.Constraint("DistanceY", -1, 1, 2, 3, 80.0))
sketch3.addConstraint(Sketcher.Constraint("DistanceY", -1, 1, 4, 3, 140.0))
sketch3.addConstraint(Sketcher.Constraint("DistanceY", -1, 1, 6, 3, 200.0))
sketch3.addConstraint(Sketcher.Constraint("DistanceY", -1, 1, 8, 3, 260.0))
sketch3.addConstraint(Sketcher.Constraint("DistanceY", -1, 1, 10, 3, 320.0))
sketch3.addConstraint(Sketcher.Constraint("DistanceY", -1, 1, 11, 3, 380.0))
sketch3.addConstraint(Sketcher.Constraint("DistanceY", -1, 1, 13, 3, 440.0))
sketch3.addConstraint(Sketcher.Constraint("DistanceY", -1, 1, 15, 3, 500.0))
sketch3.addConstraint(Sketcher.Constraint("DistanceY", -1, 1, 17, 3, 560.0))
sketch3.addConstraint(Sketcher.Constraint("DistanceY", -1, 1, 19, 3, 620.0))
sketch3.addConstraint(Sketcher.Constraint("DistanceY", -1, 1, 21, 3, 740.0))
sketch3.addConstraint(Sketcher.Constraint("DistanceY", -1, 1, 23, 3, 800.0))
sketch3.addConstraint(Sketcher.Constraint("DistanceY", -1, 1, 25, 3, 860.0))
sketch3.addConstraint(Sketcher.Constraint("DistanceY", -1, 1, 27, 3, 920.0))
sketch3.addConstraint(Sketcher.Constraint("DistanceY", -1, 1, 29, 3, 980.0))
sketch3.addConstraint(Sketcher.Constraint("DistanceY", -1, 1, 31, 3, 1040.0))
sketch3.addConstraint(Sketcher.Constraint("DistanceY", -1, 1, 33, 3, 1100.0))
sketch3.addConstraint(Sketcher.Constraint("DistanceY", -1, 1, 35, 3, 1160.0))
sketch3.addConstraint(Sketcher.Constraint("DistanceY", -1, 1, 37, 3, 1220.0))
sketch3.addConstraint(Sketcher.Constraint("DistanceY", -1, 1, 39, 3, 1280.0))
sketch3.addConstraint(Sketcher.Constraint("DistanceY", -1, 1, 41, 3, 1340.0))
sketch3.addConstraint(Sketcher.Constraint("DistanceY", -1, 1, 43, 3, 1400.0))
sketch3.addConstraint(Sketcher.Constraint("DistanceY", -1, 1, 45, 3, 1460.0))
sketch3.setExpression("Constraints[92]", "Params.sketch3_diameter")
sketch3.setExpression("Constraints[93]", "Params.sketch3_diameter2")
pocket2 = body.newObject("PartDesign::Pocket", "Pocket001")
pocket2.Profile = sketch3
pocket2.setExpression("Length", "Params.pocket2_length")
pocket2.Reversed = True

doc.recompute()
